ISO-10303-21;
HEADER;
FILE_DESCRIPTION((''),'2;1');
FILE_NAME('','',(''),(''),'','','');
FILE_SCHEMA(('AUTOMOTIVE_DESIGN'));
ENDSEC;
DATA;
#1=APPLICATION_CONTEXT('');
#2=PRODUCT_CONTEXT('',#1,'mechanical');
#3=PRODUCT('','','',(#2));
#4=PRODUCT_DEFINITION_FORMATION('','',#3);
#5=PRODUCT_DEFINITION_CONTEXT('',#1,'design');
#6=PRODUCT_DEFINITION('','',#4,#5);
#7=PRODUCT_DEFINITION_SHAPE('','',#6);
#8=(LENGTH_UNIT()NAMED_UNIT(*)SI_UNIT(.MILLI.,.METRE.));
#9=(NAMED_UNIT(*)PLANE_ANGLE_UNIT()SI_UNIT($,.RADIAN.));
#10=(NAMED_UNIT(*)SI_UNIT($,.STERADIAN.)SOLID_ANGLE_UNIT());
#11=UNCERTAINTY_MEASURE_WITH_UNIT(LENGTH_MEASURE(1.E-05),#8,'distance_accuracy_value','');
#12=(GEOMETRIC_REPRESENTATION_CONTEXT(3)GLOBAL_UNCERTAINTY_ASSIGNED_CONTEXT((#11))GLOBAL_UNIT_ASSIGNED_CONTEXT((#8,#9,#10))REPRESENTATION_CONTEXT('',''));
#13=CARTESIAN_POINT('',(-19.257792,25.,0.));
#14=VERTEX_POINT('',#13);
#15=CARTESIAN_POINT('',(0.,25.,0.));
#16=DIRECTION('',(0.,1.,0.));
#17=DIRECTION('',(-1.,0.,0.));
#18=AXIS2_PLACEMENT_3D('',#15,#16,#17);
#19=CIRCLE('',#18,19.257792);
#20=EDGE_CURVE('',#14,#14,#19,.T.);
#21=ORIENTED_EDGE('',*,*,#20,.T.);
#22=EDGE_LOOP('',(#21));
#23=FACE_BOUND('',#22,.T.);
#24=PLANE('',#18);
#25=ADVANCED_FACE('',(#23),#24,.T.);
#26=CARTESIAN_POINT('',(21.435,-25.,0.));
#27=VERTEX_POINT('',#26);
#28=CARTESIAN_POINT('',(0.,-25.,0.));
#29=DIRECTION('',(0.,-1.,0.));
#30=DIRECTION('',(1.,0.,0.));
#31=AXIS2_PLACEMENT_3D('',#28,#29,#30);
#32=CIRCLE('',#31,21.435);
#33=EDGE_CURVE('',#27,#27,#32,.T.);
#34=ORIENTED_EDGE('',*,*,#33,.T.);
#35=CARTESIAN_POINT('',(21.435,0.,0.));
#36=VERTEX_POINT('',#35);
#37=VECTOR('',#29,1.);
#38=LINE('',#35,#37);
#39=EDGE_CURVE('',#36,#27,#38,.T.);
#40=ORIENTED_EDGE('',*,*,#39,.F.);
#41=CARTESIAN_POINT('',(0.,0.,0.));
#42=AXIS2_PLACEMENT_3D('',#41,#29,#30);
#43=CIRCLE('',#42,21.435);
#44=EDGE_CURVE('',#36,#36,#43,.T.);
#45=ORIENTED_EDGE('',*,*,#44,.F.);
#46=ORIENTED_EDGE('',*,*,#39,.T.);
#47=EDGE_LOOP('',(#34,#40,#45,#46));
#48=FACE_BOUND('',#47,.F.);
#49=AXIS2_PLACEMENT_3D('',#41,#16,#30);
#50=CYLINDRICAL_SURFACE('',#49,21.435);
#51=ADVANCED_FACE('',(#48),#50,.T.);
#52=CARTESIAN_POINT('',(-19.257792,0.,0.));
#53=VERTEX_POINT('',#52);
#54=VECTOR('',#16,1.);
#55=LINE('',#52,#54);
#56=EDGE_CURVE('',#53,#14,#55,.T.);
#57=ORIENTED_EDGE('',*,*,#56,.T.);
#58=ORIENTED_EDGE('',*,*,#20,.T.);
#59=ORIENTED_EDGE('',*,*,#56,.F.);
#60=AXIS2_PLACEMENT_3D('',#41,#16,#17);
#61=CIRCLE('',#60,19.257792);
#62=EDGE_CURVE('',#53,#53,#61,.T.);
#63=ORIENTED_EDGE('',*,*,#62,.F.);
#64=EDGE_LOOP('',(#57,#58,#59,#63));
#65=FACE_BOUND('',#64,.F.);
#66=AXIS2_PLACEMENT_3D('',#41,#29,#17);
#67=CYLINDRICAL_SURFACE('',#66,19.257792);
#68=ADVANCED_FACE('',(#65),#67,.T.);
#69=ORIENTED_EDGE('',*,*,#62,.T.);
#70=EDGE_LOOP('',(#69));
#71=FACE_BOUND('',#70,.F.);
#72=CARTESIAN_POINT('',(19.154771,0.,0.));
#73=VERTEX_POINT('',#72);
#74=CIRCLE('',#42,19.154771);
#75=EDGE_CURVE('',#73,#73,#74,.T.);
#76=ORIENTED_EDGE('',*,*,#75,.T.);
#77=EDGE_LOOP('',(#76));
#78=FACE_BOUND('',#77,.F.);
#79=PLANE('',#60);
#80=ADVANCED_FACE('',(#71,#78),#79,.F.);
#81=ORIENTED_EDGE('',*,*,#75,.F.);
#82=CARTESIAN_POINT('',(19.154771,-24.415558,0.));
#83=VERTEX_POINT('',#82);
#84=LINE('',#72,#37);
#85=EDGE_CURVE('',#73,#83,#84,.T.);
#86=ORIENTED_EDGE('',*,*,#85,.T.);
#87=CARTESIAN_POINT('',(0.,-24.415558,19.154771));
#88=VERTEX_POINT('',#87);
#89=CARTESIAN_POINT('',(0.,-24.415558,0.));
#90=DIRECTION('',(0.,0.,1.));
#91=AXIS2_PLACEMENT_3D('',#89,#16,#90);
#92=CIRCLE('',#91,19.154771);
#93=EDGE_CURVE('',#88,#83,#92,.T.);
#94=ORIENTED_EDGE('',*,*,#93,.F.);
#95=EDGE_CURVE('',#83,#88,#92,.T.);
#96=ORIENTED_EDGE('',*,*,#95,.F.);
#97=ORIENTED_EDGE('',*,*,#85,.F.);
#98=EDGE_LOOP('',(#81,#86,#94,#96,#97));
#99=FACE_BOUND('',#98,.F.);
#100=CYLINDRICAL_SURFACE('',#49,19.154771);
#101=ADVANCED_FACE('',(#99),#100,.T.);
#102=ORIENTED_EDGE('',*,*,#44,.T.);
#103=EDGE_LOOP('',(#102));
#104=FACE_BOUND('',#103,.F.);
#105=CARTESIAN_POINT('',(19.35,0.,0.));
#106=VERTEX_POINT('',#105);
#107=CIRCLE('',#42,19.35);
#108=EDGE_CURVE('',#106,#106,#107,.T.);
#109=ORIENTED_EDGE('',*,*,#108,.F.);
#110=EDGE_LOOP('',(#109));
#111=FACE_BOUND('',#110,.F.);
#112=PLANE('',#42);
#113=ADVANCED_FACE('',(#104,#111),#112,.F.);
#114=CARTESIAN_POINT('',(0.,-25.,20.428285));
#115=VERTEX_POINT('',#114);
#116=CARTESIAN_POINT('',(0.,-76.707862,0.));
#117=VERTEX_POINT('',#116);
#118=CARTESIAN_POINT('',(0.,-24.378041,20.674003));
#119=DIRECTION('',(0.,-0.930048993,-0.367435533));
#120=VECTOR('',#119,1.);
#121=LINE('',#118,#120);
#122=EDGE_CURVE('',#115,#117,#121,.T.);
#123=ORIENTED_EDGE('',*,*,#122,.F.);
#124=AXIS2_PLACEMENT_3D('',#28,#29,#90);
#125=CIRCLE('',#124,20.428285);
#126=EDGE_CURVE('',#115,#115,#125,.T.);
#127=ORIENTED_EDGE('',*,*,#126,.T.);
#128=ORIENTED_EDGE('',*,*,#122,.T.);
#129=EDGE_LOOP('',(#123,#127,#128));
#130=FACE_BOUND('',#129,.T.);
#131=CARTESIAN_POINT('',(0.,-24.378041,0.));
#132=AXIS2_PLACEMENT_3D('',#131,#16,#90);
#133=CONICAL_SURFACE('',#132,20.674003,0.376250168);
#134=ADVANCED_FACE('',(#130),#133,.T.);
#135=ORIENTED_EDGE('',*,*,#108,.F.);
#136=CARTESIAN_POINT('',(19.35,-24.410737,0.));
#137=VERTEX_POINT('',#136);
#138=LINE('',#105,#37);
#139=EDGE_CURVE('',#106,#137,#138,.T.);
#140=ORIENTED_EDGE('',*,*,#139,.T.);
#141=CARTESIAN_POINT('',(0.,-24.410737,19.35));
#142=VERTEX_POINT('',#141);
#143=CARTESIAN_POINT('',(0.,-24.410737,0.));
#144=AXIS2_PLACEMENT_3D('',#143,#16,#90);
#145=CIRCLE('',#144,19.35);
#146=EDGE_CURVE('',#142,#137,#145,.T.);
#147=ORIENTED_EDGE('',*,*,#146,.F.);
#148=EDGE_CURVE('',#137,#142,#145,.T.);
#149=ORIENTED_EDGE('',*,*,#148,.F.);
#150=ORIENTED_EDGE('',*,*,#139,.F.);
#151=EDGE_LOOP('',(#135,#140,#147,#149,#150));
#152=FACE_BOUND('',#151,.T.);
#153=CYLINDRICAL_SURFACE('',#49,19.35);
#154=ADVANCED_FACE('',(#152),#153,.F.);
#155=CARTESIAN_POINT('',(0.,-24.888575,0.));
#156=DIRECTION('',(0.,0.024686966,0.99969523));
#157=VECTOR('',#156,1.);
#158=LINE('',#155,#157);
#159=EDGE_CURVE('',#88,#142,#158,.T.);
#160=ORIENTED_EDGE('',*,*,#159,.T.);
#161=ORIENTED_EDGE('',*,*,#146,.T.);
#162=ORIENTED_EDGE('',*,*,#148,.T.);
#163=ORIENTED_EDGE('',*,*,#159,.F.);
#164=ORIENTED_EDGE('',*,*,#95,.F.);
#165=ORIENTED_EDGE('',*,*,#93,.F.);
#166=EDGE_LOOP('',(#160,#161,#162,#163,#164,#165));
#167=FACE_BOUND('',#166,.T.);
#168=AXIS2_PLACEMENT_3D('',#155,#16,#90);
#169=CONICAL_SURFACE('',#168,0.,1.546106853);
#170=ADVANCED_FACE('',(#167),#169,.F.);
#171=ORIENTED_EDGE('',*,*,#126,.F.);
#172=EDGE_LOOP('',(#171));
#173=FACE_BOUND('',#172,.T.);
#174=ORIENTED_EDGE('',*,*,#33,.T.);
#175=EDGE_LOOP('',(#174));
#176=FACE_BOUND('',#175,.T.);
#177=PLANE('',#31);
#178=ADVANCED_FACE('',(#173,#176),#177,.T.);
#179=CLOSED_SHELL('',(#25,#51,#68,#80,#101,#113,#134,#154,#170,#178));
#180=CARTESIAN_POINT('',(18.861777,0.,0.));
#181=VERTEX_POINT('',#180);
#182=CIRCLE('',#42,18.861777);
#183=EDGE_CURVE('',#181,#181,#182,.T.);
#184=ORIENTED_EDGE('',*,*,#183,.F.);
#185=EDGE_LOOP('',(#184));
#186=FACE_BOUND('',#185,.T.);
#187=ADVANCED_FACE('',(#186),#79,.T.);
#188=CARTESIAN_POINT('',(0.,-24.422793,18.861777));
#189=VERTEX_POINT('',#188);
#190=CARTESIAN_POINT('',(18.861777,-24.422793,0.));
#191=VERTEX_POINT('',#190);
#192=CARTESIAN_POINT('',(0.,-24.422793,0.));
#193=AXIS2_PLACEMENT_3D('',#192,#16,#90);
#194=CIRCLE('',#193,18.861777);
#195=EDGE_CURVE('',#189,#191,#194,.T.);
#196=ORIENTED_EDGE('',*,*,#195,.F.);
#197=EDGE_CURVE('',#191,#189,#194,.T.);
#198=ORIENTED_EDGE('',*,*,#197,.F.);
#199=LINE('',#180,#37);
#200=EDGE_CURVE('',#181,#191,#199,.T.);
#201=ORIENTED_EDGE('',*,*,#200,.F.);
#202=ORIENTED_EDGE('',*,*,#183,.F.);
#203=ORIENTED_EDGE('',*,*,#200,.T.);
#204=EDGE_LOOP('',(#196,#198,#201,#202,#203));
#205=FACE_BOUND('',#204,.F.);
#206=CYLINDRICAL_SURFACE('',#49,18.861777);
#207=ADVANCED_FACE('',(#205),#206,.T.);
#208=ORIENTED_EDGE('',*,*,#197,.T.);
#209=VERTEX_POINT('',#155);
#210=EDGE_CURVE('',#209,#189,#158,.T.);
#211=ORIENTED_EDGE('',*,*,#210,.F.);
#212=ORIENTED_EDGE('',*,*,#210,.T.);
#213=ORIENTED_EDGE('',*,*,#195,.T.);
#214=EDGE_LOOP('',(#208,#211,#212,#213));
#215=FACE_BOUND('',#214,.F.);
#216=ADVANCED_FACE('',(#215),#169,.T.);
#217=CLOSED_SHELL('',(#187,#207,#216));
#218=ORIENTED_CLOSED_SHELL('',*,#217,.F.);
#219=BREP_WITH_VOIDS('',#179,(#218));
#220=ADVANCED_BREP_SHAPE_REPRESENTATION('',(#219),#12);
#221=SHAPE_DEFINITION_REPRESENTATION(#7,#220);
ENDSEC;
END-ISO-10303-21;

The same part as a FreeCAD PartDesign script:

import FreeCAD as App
import Part
import Sketcher
from FreeCAD import Vector

doc = App.newDocument("Part")
body = doc.addObject("PartDesign::Body", "Body")

# Sketch on XZ plane
sketch1 = body.newObject("Sketcher::SketchObject", "Sketch")
sketch1.AttachmentSupport = (doc.getObject("XZ_Plane"), [""])
sketch1.MapMode = "FlatFace"
sketch1.addGeometry([
    Part.Circle(Vector(0, 0, 0), Vector(0, 0, 1), 21),
    Part.Circle(Vector(0, 0, 0), Vector(0, 0, 1), 19),
], False)
sketch1.addConstraint([
    Sketcher.Constraint("Coincident", 0, 3, -1, 1),
    Sketcher.Constraint("Coincident", 1, 3, -1, 1),
    Sketcher.Constraint("Diameter", 1, 38.7),
    Sketcher.Constraint("Diameter", 0, 42.87),
])
pad1 = body.newObject("PartDesign::Pad", "Pad")
pad1.Profile = sketch1
pad1.Length = 25

# Sketch on YZ plane
sketch2 = body.newObject("Sketcher::SketchObject", "Sketch001")
sketch2.AttachmentSupport = (doc.getObject("YZ_Plane"), [""])
sketch2.MapMode = "FlatFace"
sketch2.addGeometry([
    Part.LineSegment(Vector(-77, 0, 0), Vector(-25, 0, 0)),
    Part.LineSegment(Vector(-25, 0, 0), Vector(-24, 21, 0)),
    Part.LineSegment(Vector(-24, 21, 0), Vector(-77, 0, 0)),
], False)
sketch2.addConstraint([
    Sketcher.Constraint("Coincident", 0, 2, 1, 1),
    Sketcher.Constraint("Coincident", 1, 2, 2, 1),
    Sketcher.Constraint("Coincident", 2, 2, 0, 1),
    Sketcher.Constraint("Horizontal", 0),
    Sketcher.Constraint("PointOnObject", 0, 2, -1),
    Sketcher.Constraint("Distance", 2, 56.265661),
    Sketcher.Constraint("DistanceX", 0, 1, 0, 2, 51.819287),
    Sketcher.Constraint("DistanceX", 1, 2, -1, 1, 24.378041),
    Sketcher.Constraint("DistanceX", 2, 2, 1, 2, 52.329821),
])
revolution = body.newObject("PartDesign::Revolution", "Revolution")
revolution.Profile = sketch2
revolution.ReferenceAxis = (sketch2, ["H_Axis"])
revolution.Angle = 360

# Sketch on XZ plane
sketch3 = body.newObject("Sketcher::SketchObject", "Sketch002")
sketch3.AttachmentSupport = (doc.getObject("XZ_Plane"), [""])
sketch3.MapMode = "FlatFace"
sketch3.addGeometry([
    Part.Circle(Vector(0, 0, 0), Vector(0, 0, 1), 19),
    Part.Circle(Vector(0, 0, 0), Vector(0, 0, 1), 19),
], False)
sketch3.addConstraint([
    Sketcher.Constraint("Coincident", 0, 3, -1, 1),
    Sketcher.Constraint("Coincident", 1, 3, -1, 1),
    Sketcher.Constraint("Diameter", 0, 38.309542),
    Sketcher.Constraint("Diameter", 1, 37.723554),
])
pad2 = body.newObject("PartDesign::Pad", "Pad001")
pad2.Profile = sketch3
pad2.Length = 25

# Sketch on XZ plane
sketch4 = body.newObject("Sketcher::SketchObject", "Sketch003")
sketch4.AttachmentSupport = (doc.getObject("XZ_Plane"), [""])
sketch4.MapMode = "FlatFace"
sketch4.addGeometry(Part.Circle(Vector(0, 0, 0), Vector(0, 0, 1), 19), False)
sketch4.addConstraint([
    Sketcher.Constraint("Coincident", 0, 3, -1, 1),
    Sketcher.Constraint("Diameter", 0, 38.515584),
])
pad3 = body.newObject("PartDesign::Pad", "Pad002")
pad3.Profile = sketch4
pad3.Length = 25
pad3.Reversed = True

doc.recompute()
